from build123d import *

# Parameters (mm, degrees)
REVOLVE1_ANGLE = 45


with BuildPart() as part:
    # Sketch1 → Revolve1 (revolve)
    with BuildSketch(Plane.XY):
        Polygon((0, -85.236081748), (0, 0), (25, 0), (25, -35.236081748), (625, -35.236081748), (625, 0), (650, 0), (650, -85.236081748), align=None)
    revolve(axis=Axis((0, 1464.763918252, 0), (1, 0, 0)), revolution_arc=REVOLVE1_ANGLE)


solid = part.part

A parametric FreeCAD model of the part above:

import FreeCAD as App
import Part
import Sketcher

V = App.Vector

doc = App.newDocument("Part")
body = doc.addObject("PartDesign::Body", "Body")

# Sketch on XY plane
sketch1 = body.newObject("Sketcher::SketchObject", "Sketch")
sketch1.AttachmentSupport = (doc.getObject("XY_Plane"), [""])
sketch1.MapMode = "FlatFace"
sketch1.addGeometry([
    Part.LineSegment(V(0, 0, 0), V(0, -85, 0)),  # 0
    Part.LineSegment(V(0, -85, 0), V(650, -85, 0)),  # 1
    Part.LineSegment(V(650, -85, 0), V(650, 0, 0)),  # 2
    Part.LineSegment(V(650, 0, 0), V(625, 0, 0)),  # 3
    Part.LineSegment(V(625, 0, 0), V(625, -35, 0)),  # 4
    Part.LineSegment(V(625, -35, 0), V(25, -35, 0)),  # 5
    Part.LineSegment(V(25, -35, 0), V(25, 0, 0)),  # 6
    Part.LineSegment(V(25, 0, 0), V(0, 0, 0)),  # 7
], False)
sketch1.addGeometry(Part.LineSegment(V(0, 1465, 0), V(650, 1465, 0)), True)  # axis
sketch1.addConstraint([
    Sketcher.Constraint("Coincident", 0, 2, 1, 1),
    Sketcher.Constraint("Coincident", 1, 2, 2, 1),
    Sketcher.Constraint("Coincident", 2, 2, 3, 1),
    Sketcher.Constraint("Coincident", 3, 2, 4, 1),
    Sketcher.Constraint("Coincident", 4, 2, 5, 1),
    Sketcher.Constraint("Coincident", 5, 2, 6, 1),
    Sketcher.Constraint("Coincident", 6, 2, 7, 1),
    Sketcher.Constraint("Coincident", 7, 2, 0, 1),
    Sketcher.Constraint("Vertical", 0),
    Sketcher.Constraint("Horizontal", 1),
    Sketcher.Constraint("Vertical", 2),
    Sketcher.Constraint("Horizontal", 3),
    Sketcher.Constraint("Vertical", 4),
    Sketcher.Constraint("Horizontal", 5),
    Sketcher.Constraint("Vertical", 6),
    Sketcher.Constraint("Horizontal", 7),
    Sketcher.Constraint("Horizontal", 8),
    Sketcher.Constraint("Coincident", 7, 2, -1, 1),
    Sketcher.Constraint("PointOnObject", 2, 2, -1),
    Sketcher.Constraint("PointOnObject", 8, 1, -2),
    Sketcher.Constraint("Vertical", 2, 2, 8, 2),
    Sketcher.Constraint("Equal", 3, 7),
    Sketcher.Constraint("DistanceX", 1, 1, 1, 2, 650.0),
    Sketcher.Constraint("DistanceX", 3, 2, 3, 1, 25.0),
    Sketcher.Constraint("DistanceY", 1, 2, 4, 2, 50.0),
    Sketcher.Constraint("DistanceY", 5, 2, 8, 1, 1500.0),
    Sketcher.Constraint("DistanceY", 0, 2, 0, 1, 85.236082),
])
revolution = body.newObject("PartDesign::Revolution", "Revolution")
revolution.Profile = sketch1
revolution.ReferenceAxis = (sketch1, ["Axis0"])
revolution.Angle = 45

doc.recompute()
